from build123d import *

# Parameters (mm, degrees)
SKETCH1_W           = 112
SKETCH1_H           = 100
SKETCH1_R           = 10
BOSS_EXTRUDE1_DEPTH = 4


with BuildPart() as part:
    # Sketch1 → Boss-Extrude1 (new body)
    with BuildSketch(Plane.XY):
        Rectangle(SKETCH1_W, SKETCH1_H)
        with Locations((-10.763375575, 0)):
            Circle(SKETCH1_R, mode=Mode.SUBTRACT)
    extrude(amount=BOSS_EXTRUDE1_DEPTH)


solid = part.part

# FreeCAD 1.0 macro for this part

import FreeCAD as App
import Part
import Sketcher
from FreeCAD import Vector
Q = App.Units.Quantity

doc = App.newDocument("Part")
body = doc.addObject("PartDesign::Body", "Body")

sketch1 = doc.addObject("Sketcher::SketchObject", "Sketch")
body.addObject(sketch1)
sketch1.AttachmentSupport = (doc.XY_Plane, [""])
sketch1.MapMode = "FlatFace"
sketch1.addGeometry([
    Part.LineSegment(Vector(-56, 50, 0), Vector(-56, -50, 0)),
    Part.LineSegment(Vector(-56, -50, 0), Vector(56, -50, 0)),
    Part.LineSegment(Vector(56, -50, 0), Vector(56, 50, 0)),
    Part.LineSegment(Vector(56, 50, 0), Vector(-56, 50, 0)),
    Part.Circle(Vector(-11, 0, 0), Vector(0, 0, 1), 10),
], False)
sketch1.addConstraint([
    Sketcher.Constraint("Coincident", 0, 2, 1, 1),
    Sketcher.Constraint("Coincident", 1, 2, 2, 1),
    Sketcher.Constraint("Coincident", 2, 2, 3, 1),
    Sketcher.Constraint("Coincident", 3, 2, 0, 1),
    Sketcher.Constraint("Vertical", 0),
    Sketcher.Constraint("Horizontal", 1),
    Sketcher.Constraint("Vertical", 2),
    Sketcher.Constraint("Horizontal", 3),
    Sketcher.Constraint("Symmetric", 0, 2, 2, 2, -1, 1),
    Sketcher.Constraint("PointOnObject", 4, 3, -1),
    Sketcher.Constraint("Diameter", 4, Q("20 mm")),
    Sketcher.Constraint("DistanceX", 1, 1, 1, 2, Q("112 mm")),
    Sketcher.Constraint("DistanceY", 0, 2, 0, 1, Q("100 mm")),
    Sketcher.Constraint("DistanceX", 4, 3, -1, 1, Q("10.763376 mm")),
])
pad1 = doc.addObject("PartDesign::Pad", "Pad")
body.addObject(pad1)
pad1.Profile = sketch1
pad1.Length = 4

doc.recompute()
